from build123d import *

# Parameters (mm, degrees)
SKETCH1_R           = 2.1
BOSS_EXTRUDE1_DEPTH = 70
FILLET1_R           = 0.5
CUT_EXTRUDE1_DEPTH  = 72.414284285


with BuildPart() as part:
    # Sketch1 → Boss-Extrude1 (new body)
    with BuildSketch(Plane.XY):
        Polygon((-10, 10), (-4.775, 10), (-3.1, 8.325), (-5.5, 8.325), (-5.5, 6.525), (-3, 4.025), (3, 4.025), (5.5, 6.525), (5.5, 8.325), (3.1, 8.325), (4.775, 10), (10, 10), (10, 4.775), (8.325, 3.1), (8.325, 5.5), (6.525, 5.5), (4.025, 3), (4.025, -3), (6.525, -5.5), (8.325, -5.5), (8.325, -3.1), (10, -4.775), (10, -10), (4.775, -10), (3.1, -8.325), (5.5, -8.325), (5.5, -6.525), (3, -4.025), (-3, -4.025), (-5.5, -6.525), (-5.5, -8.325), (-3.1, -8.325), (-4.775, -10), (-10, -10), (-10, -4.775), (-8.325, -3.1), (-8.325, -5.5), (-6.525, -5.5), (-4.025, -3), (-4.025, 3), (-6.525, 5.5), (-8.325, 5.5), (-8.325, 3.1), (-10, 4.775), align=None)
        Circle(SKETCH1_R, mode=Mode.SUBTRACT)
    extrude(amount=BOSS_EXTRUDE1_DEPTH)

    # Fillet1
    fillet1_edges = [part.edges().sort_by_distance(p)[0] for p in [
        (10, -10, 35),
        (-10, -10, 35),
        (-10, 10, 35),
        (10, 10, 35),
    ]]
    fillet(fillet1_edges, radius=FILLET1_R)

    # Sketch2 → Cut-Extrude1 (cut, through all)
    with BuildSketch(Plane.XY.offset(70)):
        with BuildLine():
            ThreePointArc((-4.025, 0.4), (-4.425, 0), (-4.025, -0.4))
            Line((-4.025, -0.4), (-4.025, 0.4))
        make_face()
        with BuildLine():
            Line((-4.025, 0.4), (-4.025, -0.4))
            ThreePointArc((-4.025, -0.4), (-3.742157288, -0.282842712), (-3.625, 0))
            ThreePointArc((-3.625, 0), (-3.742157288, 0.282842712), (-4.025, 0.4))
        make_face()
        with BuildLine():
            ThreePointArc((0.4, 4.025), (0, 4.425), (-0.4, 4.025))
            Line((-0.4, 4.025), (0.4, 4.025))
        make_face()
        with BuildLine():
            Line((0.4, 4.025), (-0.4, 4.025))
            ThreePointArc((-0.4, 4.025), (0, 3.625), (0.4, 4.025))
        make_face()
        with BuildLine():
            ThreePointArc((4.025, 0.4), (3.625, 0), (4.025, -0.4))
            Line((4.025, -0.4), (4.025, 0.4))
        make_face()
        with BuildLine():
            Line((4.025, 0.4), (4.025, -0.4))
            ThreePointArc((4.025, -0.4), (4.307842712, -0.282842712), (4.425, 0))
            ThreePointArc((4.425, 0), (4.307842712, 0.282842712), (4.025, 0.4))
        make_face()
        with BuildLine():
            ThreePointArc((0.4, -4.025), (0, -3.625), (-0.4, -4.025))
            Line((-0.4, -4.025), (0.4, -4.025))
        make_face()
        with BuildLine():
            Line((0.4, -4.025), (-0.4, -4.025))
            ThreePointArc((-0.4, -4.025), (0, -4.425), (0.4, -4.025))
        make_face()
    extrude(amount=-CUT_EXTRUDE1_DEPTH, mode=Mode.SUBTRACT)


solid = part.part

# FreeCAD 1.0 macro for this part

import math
import FreeCAD as App
import Part
import Sketcher
from FreeCAD import Vector
Q = App.Units.Quantity


def edges_at(feature, points):
    """Names of the edges that pass closest to the given points."""
    edges = feature.Shape.Edges
    near = lambda p: min(range(len(edges)), key=lambda i: edges[i].distToShape(Part.Vertex(*p))[0])
    return sorted({f"Edge{near(p) + 1}" for p in points})

doc = App.newDocument("Part")
body = doc.addObject("PartDesign::Body", "Body")

# Sketch on XY plane
sketch1 = doc.addObject("Sketcher::SketchObject", "Sketch")
body.addObject(sketch1)
sketch1.AttachmentSupport = (doc.XY_Plane, [""])
sketch1.MapMode = "FlatFace"
sketch1.addGeometry(Part.LineSegment(Vector(-4.8, 10, 0), Vector(-10, 10, 0)), False)
sketch1.addGeometry(Part.LineSegment(Vector(-10, 10, 0), Vector(-10, 4.8, 0)), False)
sketch1.addGeometry(Part.LineSegment(Vector(-10, 4.8, 0), Vector(-8.3, 3.1, 0)), False)
sketch1.addGeometry(Part.LineSegment(Vector(-8.3, 3.1, 0), Vector(-8.3, 5.5, 0)), False)
sketch1.addGeometry(Part.LineSegment(Vector(-8.3, 5.5, 0), Vector(-6.5, 5.5, 0)), False)
sketch1.addGeometry(Part.LineSegment(Vector(-6.5, 5.5, 0), Vector(-4, 3, 0)), False)
sketch1.addGeometry(Part.LineSegment(Vector(-4, 3, 0), Vector(-4, -3, 0)), False)
sketch1.addGeometry(Part.LineSegment(Vector(-4, -3, 0), Vector(-6.5, -5.5, 0)), False)
sketch1.addGeometry(Part.LineSegment(Vector(-6.5, -5.5, 0), Vector(-8.3, -5.5, 0)), False)
sketch1.addGeometry(Part.LineSegment(Vector(-8.3, -5.5, 0), Vector(-8.3, -3.1, 0)), False)
sketch1.addGeometry(Part.LineSegment(Vector(-8.3, -3.1, 0), Vector(-10, -4.8, 0)), False)
sketch1.addGeometry(Part.LineSegment(Vector(-10, -4.8, 0), Vector(-10, -10, 0)), False)
sketch1.addGeometry(Part.LineSegment(Vector(-10, -10, 0), Vector(-4.8, -10, 0)), False)
sketch1.addGeometry(Part.LineSegment(Vector(-4.8, -10, 0), Vector(-3.1, -8.3, 0)), False)
sketch1.addGeometry(Part.LineSegment(Vector(-3.1, -8.3, 0), Vector(-5.5, -8.3, 0)), False)
sketch1.addGeometry(Part.LineSegment(Vector(-5.5, -8.3, 0), Vector(-5.5, -6.5, 0)), False)
sketch1.addGeometry(Part.LineSegment(Vector(-5.5, -6.5, 0), Vector(-3, -4, 0)), False)
sketch1.addGeometry(Part.LineSegment(Vector(-3, -4, 0), Vector(3, -4, 0)), False)
sketch1.addGeometry(Part.LineSegment(Vector(3, -4, 0), Vector(5.5, -6.5, 0)), False)
sketch1.addGeometry(Part.LineSegment(Vector(5.5, -6.5, 0), Vector(5.5, -8.3, 0)), False)
sketch1.addGeometry(Part.LineSegment(Vector(5.5, -8.3, 0), Vector(3.1, -8.3, 0)), False)
sketch1.addGeometry(Part.LineSegment(Vector(3.1, -8.3, 0), Vector(4.8, -10, 0)), False)
sketch1.addGeometry(Part.LineSegment(Vector(4.8, -10, 0), Vector(10, -10, 0)), False)
sketch1.addGeometry(Part.LineSegment(Vector(10, -10, 0), Vector(10, -4.8, 0)), False)
sketch1.addGeometry(Part.LineSegment(Vector(10, -4.8, 0), Vector(8.3, -3.1, 0)), False)
sketch1.addGeometry(Part.LineSegment(Vector(8.3, -3.1, 0), Vector(8.3, -5.5, 0)), False)
sketch1.addGeometry(Part.LineSegment(Vector(8.3, -5.5, 0), Vector(6.5, -5.5, 0)), False)
sketch1.addGeometry(Part.LineSegment(Vector(6.5, -5.5, 0), Vector(4, -3, 0)), False)
sketch1.addGeometry(Part.LineSegment(Vector(4, -3, 0), Vector(4, 3, 0)), False)
sketch1.addGeometry(Part.LineSegment(Vector(4, 3, 0), Vector(6.5, 5.5, 0)), False)
sketch1.addGeometry(Part.LineSegment(Vector(6.5, 5.5, 0), Vector(8.3, 5.5, 0)), False)
sketch1.addGeometry(Part.LineSegment(Vector(8.3, 5.5, 0), Vector(8.3, 3.1, 0)), False)
sketch1.addGeometry(Part.LineSegment(Vector(8.3, 3.1, 0), Vector(10, 4.8, 0)), False)
sketch1.addGeometry(Part.LineSegment(Vector(10, 4.8, 0), Vector(10, 10, 0)), False)
sketch1.addGeometry(Part.LineSegment(Vector(10, 10, 0), Vector(4.8, 10, 0)), False)
sketch1.addGeometry(Part.LineSegment(Vector(4.8, 10, 0), Vector(3.1, 8.3, 0)), False)
sketch1.addGeometry(Part.LineSegment(Vector(3.1, 8.3, 0), Vector(5.5, 8.3, 0)), False)
sketch1.addGeometry(Part.LineSegment(Vector(5.5, 8.3, 0), Vector(5.5, 6.5, 0)), False)
sketch1.addGeometry(Part.LineSegment(Vector(5.5, 6.5, 0), Vector(3, 4, 0)), False)
sketch1.addGeometry(Part.LineSegment(Vector(3, 4, 0), Vector(-3, 4, 0)), False)
sketch1.addGeometry(Part.LineSegment(Vector(-3, 4, 0), Vector(-5.5, 6.5, 0)), False)
sketch1.addGeometry(Part.LineSegment(Vector(-5.5, 6.5, 0), Vector(-5.5, 8.3, 0)), False)
sketch1.addGeometry(Part.LineSegment(Vector(-5.5, 8.3, 0), Vector(-3.1, 8.3, 0)), False)
sketch1.addGeometry(Part.LineSegment(Vector(-3.1, 8.3, 0), Vector(-4.8, 10, 0)), False)
sketch1.addGeometry(Part.Circle(Vector(0, 0, 0), Vector(0, 0, 1), 2.1), False)
sketch1.addConstraint(Sketcher.Constraint("Coincident", 0, 2, 1, 1))
sketch1.addConstraint(Sketcher.Constraint("Coincident", 1, 2, 2, 1))
sketch1.addConstraint(Sketcher.Constraint("Coincident", 2, 2, 3, 1))
sketch1.addConstraint(Sketcher.Constraint("Coincident", 3, 2, 4, 1))
sketch1.addConstraint(Sketcher.Constraint("Coincident", 4, 2, 5, 1))
sketch1.addConstraint(Sketcher.Constraint("Coincident", 5, 2, 6, 1))
sketch1.addConstraint(Sketcher.Constraint("Coincident", 6, 2, 7, 1))
sketch1.addConstraint(Sketcher.Constraint("Coincident", 7, 2, 8, 1))
sketch1.addConstraint(Sketcher.Constraint("Coincident", 8, 2, 9, 1))
sketch1.addConstraint(Sketcher.Constraint("Coincident", 9, 2, 10, 1))
sketch1.addConstraint(Sketcher.Constraint("Coincident", 10, 2, 11, 1))
sketch1.addConstraint(Sketcher.Constraint("Coincident", 11, 2, 12, 1))
sketch1.addConstraint(Sketcher.Constraint("Coincident", 12, 2, 13, 1))
sketch1.addConstraint(Sketcher.Constraint("Coincident", 13, 2, 14, 1))
sketch1.addConstraint(Sketcher.Constraint("Coincident", 14, 2, 15, 1))
sketch1.addConstraint(Sketcher.Constraint("Coincident", 15, 2, 16, 1))
sketch1.addConstraint(Sketcher.Constraint("Coincident", 16, 2, 17, 1))
sketch1.addConstraint(Sketcher.Constraint("Coincident", 17, 2, 18, 1))
sketch1.addConstraint(Sketcher.Constraint("Coincident", 18, 2, 19, 1))
sketch1.addConstraint(Sketcher.Constraint("Coincident", 19, 2, 20, 1))
sketch1.addConstraint(Sketcher.Constraint("Coincident", 20, 2, 21, 1))
sketch1.addConstraint(Sketcher.Constraint("Coincident", 21, 2, 22, 1))
sketch1.addConstraint(Sketcher.Constraint("Coincident", 22, 2, 23, 1))
sketch1.addConstraint(Sketcher.Constraint("Coincident", 23, 2, 24, 1))
sketch1.addConstraint(Sketcher.Constraint("Coincident", 24, 2, 25, 1))
sketch1.addConstraint(Sketcher.Constraint("Coincident", 25, 2, 26, 1))
sketch1.addConstraint(Sketcher.Constraint("Coincident", 26, 2, 27, 1))
sketch1.addConstraint(Sketcher.Constraint("Coincident", 27, 2, 28, 1))
sketch1.addConstraint(Sketcher.Constraint("Coincident", 28, 2, 29, 1))
sketch1.addConstraint(Sketcher.Constraint("Coincident", 29, 2, 30, 1))
sketch1.addConstraint(Sketcher.Constraint("Coincident", 30, 2, 31, 1))
sketch1.addConstraint(Sketcher.Constraint("Coincident", 31, 2, 32, 1))
sketch1.addConstraint(Sketcher.Constraint("Coincident", 32, 2, 33, 1))
sketch1.addConstraint(Sketcher.Constraint("Coincident", 33, 2, 34, 1))
sketch1.addConstraint(Sketcher.Constraint("Coincident", 34, 2, 35, 1))
sketch1.addConstraint(Sketcher.Constraint("Coincident", 35, 2, 36, 1))
sketch1.addConstraint(Sketcher.Constraint("Coincident", 36, 2, 37, 1))
sketch1.addConstraint(Sketcher.Constraint("Coincident", 37, 2, 38, 1))
sketch1.addConstraint(Sketcher.Constraint("Coincident", 38, 2, 39, 1))
sketch1.addConstraint(Sketcher.Constraint("Coincident", 39, 2, 40, 1))
sketch1.addConstraint(Sketcher.Constraint("Coincident", 40, 2, 41, 1))
sketch1.addConstraint(Sketcher.Constraint("Coincident", 41, 2, 42, 1))
sketch1.addConstraint(Sketcher.Constraint("Coincident", 42, 2, 43, 1))
sketch1.addConstraint(Sketcher.Constraint("Coincident", 43, 2, 0, 1))
sketch1.addConstraint(Sketcher.Constraint("Horizontal", 0))
sketch1.addConstraint(Sketcher.Constraint("Vertical", 1))
sketch1.addConstraint(Sketcher.Constraint("Vertical", 3))
sketch1.addConstraint(Sketcher.Constraint("Horizontal", 4))
sketch1.addConstraint(Sketcher.Constraint("Vertical", 6))
sketch1.addConstraint(Sketcher.Constraint("Horizontal", 8))
sketch1.addConstraint(Sketcher.Constraint("Vertical", 9))
sketch1.addConstraint(Sketcher.Constraint("Vertical", 11))
sketch1.addConstraint(Sketcher.Constraint("Horizontal", 12))
sketch1.addConstraint(Sketcher.Constraint("Horizontal", 14))
sketch1.addConstraint(Sketcher.Constraint("Vertical", 15))
sketch1.addConstraint(Sketcher.Constraint("Horizontal", 17))
sketch1.addConstraint(Sketcher.Constraint("Vertical", 19))
sketch1.addConstraint(Sketcher.Constraint("Horizontal", 20))
sketch1.addConstraint(Sketcher.Constraint("Horizontal", 22))
sketch1.addConstraint(Sketcher.Constraint("Vertical", 23))
sketch1.addConstraint(Sketcher.Constraint("Vertical", 25))
sketch1.addConstraint(Sketcher.Constraint("Horizontal", 26))
sketch1.addConstraint(Sketcher.Constraint("Vertical", 28))
sketch1.addConstraint(Sketcher.Constraint("Horizontal", 30))
sketch1.addConstraint(Sketcher.Constraint("Vertical", 31))
sketch1.addConstraint(Sketcher.Constraint("Vertical", 33))
sketch1.addConstraint(Sketcher.Constraint("Horizontal", 34))
sketch1.addConstraint(Sketcher.Constraint("Horizontal", 36))
sketch1.addConstraint(Sketcher.Constraint("Vertical", 37))
sketch1.addConstraint(Sketcher.Constraint("Horizontal", 39))
sketch1.addConstraint(Sketcher.Constraint("Vertical", 41))
sketch1.addConstraint(Sketcher.Constraint("Horizontal", 42))
sketch1.addConstraint(Sketcher.Constraint("Coincident", 44, 3, -1, 1))
sketch1.addConstraint(Sketcher.Constraint("Symmetric", 0, 2, 22, 2, -1, 1))
sketch1.addConstraint(Sketcher.Constraint("Symmetric", 2, 2, 24, 2, -1, 1))
sketch1.addConstraint(Sketcher.Constraint("Symmetric", 4, 2, 26, 2, -1, 1))
sketch1.addConstraint(Sketcher.Constraint("Symmetric", 5, 2, 27, 2, -1, 1))
sketch1.addConstraint(Sketcher.Constraint("Symmetric", 7, 2, 29, 2, -1, 1))
sketch1.addConstraint(Sketcher.Constraint("Symmetric", 9, 2, 31, 2, -1, 1))
sketch1.addConstraint(Sketcher.Constraint("Symmetric", 10, 2, 32, 2, -1, 1))
sketch1.addConstraint(Sketcher.Constraint("Symmetric", 12, 2, 34, 2, -1, 1))
sketch1.addConstraint(Sketcher.Constraint("Symmetric", 13, 2, 35, 2, -1, 1))
sketch1.addConstraint(Sketcher.Constraint("Symmetric", 15, 2, 37, 2, -1, 1))
sketch1.addConstraint(Sketcher.Constraint("Symmetric", 16, 2, 38, 2, -1, 1))
sketch1.addConstraint(Sketcher.Constraint("Symmetric", 18, 2, 40, 2, -1, 1))
sketch1.addConstraint(Sketcher.Constraint("Symmetric", 20, 2, 42, 2, -1, 1))
sketch1.addConstraint(Sketcher.Constraint("Symmetric", 15, 2, 18, 2, -2))
sketch1.addConstraint(Sketcher.Constraint("Symmetric", 13, 2, 20, 2, -2))
sketch1.addConstraint(Sketcher.Constraint("Symmetric", 12, 2, 21, 2, -2))
sketch1.addConstraint(Sketcher.Constraint("Symmetric", 10, 2, 23, 2, -2))
sketch1.addConstraint(Sketcher.Constraint("Symmetric", 9, 2, 24, 2, -2))
sketch1.addConstraint(Sketcher.Constraint("Symmetric", 7, 2, 26, 2, -2))
sketch1.addConstraint(Sketcher.Constraint("Parallel", 2, 5))
sketch1.addConstraint(Sketcher.Constraint("Perpendicular", 5, 7))
sketch1.addConstraint(Sketcher.Constraint("Parallel", 7, 10))
sketch1.addConstraint(Sketcher.Constraint("Parallel", 10, 13))
sketch1.addConstraint(Sketcher.Constraint("Parallel", 13, 16))
sketch1.addConstraint(Sketcher.Constraint("Perpendicular", 16, 18))
sketch1.addConstraint(Sketcher.Constraint("Parallel", 18, 21))
sketch1.addConstraint(Sketcher.Constraint("Perpendicular", 27, 29))
sketch1.addConstraint(Sketcher.Constraint("Perpendicular", 38, 40))
sketch1.addConstraint(Sketcher.Constraint("Parallel", 40, 43))
sketch1.addConstraint(Sketcher.Constraint("Equal", 34, 1))
sketch1.addConstraint(Sketcher.Constraint("Equal", 42, 3))
sketch1.addConstraint(Sketcher.Constraint("Equal", 39, 6))
sketch1.addConstraint(Sketcher.Constraint("Equal", 30, 15))
sketch1.addConstraint(Sketcher.Constraint("Equal", 10, 13))
sketch1.addConstraint(Sketcher.Constraint("Equal", 7, 16))
sketch1.addConstraint(Sketcher.Constraint("Diameter", 44, Q("4.2 mm")))
sketch1.addConstraint(Sketcher.Constraint("DistanceX", 17, 1, 17, 2, Q("6 mm")))
sketch1.addConstraint(Sketcher.Constraint("DistanceX", 4, 1, 4, 2, Q("1.8 mm")))
sketch1.addConstraint(Sketcher.Constraint("DistanceX", 14, 2, 14, 1, Q("2.4 mm")))
sketch1.addConstraint(Sketcher.Constraint("DistanceX", 0, 2, -1, 1, Q("10 mm")))
sketch1.addConstraint(Sketcher.Constraint("DistanceY", -1, 1, 2, 2, Q("3.1 mm")))
sketch1.addConstraint(Sketcher.Constraint("DistanceX", 0, 2, 0, 1, Q("5.225 mm")))
pad1 = doc.addObject("PartDesign::Pad", "Pad")
body.addObject(pad1)
pad1.Profile = sketch1
pad1.Length = 70
doc.recompute()

fillet = doc.addObject("PartDesign::Fillet", "Fillet")
body.addObject(fillet)
fillet.Base = (pad1, edges_at(pad1, [
    (10, -10, 35),
    (-10, -10, 35),
    (-10, 10, 35),
    (10, 10, 35),
]))
fillet.Radius = 0.5

# Sketch on XY plane
sketch2 = doc.addObject("Sketcher::SketchObject", "Sketch001")
body.addObject(sketch2)
sketch2.AttachmentSupport = (doc.XY_Plane, [""])
sketch2.MapMode = "FlatFace"
sketch2.AttachmentOffset = App.Placement(Vector(0, 0, 70), App.Rotation())
sketch2.addGeometry(Part.ArcOfCircle(Part.Circle(Vector(-4.03, 0, 0), Vector(0, 0, 1), 0.4), math.radians(90), math.radians(270)), False)
sketch2.addGeometry(Part.ArcOfCircle(Part.Circle(Vector(-4.03, 0, 0), Vector(0, 0, 1), 0.4), math.radians(-90), math.radians(0)), False)
sketch2.addGeometry(Part.ArcOfCircle(Part.Circle(Vector(-4.03, 0, 0), Vector(0, 0, 1), 0.4), math.radians(0), math.radians(90)), False)
sketch2.addGeometry(Part.Circle(Vector(0, 4.03, 0), Vector(0, 0, 1), 0.4), False)
sketch2.addGeometry(Part.ArcOfCircle(Part.Circle(Vector(4.03, 0, 0), Vector(0, 0, 1), 0.4), math.radians(90), math.radians(270)), False)
sketch2.addGeometry(Part.ArcOfCircle(Part.Circle(Vector(4.02, 0, 0), Vector(0, 0, 1), 0.4), math.radians(-90), math.radians(0)), False)
sketch2.addGeometry(Part.ArcOfCircle(Part.Circle(Vector(4.02, 0, 0), Vector(0, 0, 1), 0.4), math.radians(0), math.radians(90)), False)
sketch2.addGeometry(Part.Circle(Vector(0, -4.03, 0), Vector(0, 0, 1), 0.4), False)
sketch2.addConstraint(Sketcher.Constraint("Tangent", 0, 2, 1, 1))
sketch2.addConstraint(Sketcher.Constraint("Tangent", 1, 2, 2, 1))
sketch2.addConstraint(Sketcher.Constraint("Tangent", 2, 2, 0, 1))
sketch2.addConstraint(Sketcher.Constraint("Tangent", 4, 2, 5, 1))
sketch2.addConstraint(Sketcher.Constraint("Tangent", 5, 2, 6, 1))
sketch2.addConstraint(Sketcher.Constraint("Tangent", 6, 2, 4, 1))
sketch2.addConstraint(Sketcher.Constraint("Equal", 2, 3))
sketch2.addConstraint(Sketcher.Constraint("Equal", 3, 4))
sketch2.addConstraint(Sketcher.Constraint("Equal", 6, 7))
sketch2.addConstraint(Sketcher.Constraint("Symmetric", 0, 3, 4, 3, -1, 1))
sketch2.addConstraint(Sketcher.Constraint("Symmetric", 3, 3, 7, 3, -1, 1))
sketch2.addConstraint(Sketcher.Constraint("Symmetric", 0, 2, 4, 2, -2))
sketch2.addConstraint(Sketcher.Constraint("PointOnObject", 3, 3, -2))
sketch2.addConstraint(Sketcher.Constraint("PointOnObject", 1, 2, -1))
sketch2.addConstraint(Sketcher.Constraint("PointOnObject", 5, 2, -1))
sketch2.addConstraint(Sketcher.Constraint("Vertical", 2, 3, 0, 2))
sketch2.addConstraint(Sketcher.Constraint("Vertical", 0, 2, 2, 2))
sketch2.addConstraint(Sketcher.Constraint("Vertical", 4, 2, 6, 2))
sketch2.addConstraint(Sketcher.Constraint("Diameter", 3, Q("0.8 mm")))
sketch2.addConstraint(Sketcher.Constraint("DistanceX", 0, 3, 4, 3, Q("8.05 mm")))
sketch2.addConstraint(Sketcher.Constraint("DistanceY", -1, 1, 3, 3, Q("4.025 mm")))
pocket1 = doc.addObject("PartDesign::Pocket", "Pocket")
body.addObject(pocket1)
pocket1.Profile = sketch2
pocket1.Type = "ThroughAll"

doc.recompute()
